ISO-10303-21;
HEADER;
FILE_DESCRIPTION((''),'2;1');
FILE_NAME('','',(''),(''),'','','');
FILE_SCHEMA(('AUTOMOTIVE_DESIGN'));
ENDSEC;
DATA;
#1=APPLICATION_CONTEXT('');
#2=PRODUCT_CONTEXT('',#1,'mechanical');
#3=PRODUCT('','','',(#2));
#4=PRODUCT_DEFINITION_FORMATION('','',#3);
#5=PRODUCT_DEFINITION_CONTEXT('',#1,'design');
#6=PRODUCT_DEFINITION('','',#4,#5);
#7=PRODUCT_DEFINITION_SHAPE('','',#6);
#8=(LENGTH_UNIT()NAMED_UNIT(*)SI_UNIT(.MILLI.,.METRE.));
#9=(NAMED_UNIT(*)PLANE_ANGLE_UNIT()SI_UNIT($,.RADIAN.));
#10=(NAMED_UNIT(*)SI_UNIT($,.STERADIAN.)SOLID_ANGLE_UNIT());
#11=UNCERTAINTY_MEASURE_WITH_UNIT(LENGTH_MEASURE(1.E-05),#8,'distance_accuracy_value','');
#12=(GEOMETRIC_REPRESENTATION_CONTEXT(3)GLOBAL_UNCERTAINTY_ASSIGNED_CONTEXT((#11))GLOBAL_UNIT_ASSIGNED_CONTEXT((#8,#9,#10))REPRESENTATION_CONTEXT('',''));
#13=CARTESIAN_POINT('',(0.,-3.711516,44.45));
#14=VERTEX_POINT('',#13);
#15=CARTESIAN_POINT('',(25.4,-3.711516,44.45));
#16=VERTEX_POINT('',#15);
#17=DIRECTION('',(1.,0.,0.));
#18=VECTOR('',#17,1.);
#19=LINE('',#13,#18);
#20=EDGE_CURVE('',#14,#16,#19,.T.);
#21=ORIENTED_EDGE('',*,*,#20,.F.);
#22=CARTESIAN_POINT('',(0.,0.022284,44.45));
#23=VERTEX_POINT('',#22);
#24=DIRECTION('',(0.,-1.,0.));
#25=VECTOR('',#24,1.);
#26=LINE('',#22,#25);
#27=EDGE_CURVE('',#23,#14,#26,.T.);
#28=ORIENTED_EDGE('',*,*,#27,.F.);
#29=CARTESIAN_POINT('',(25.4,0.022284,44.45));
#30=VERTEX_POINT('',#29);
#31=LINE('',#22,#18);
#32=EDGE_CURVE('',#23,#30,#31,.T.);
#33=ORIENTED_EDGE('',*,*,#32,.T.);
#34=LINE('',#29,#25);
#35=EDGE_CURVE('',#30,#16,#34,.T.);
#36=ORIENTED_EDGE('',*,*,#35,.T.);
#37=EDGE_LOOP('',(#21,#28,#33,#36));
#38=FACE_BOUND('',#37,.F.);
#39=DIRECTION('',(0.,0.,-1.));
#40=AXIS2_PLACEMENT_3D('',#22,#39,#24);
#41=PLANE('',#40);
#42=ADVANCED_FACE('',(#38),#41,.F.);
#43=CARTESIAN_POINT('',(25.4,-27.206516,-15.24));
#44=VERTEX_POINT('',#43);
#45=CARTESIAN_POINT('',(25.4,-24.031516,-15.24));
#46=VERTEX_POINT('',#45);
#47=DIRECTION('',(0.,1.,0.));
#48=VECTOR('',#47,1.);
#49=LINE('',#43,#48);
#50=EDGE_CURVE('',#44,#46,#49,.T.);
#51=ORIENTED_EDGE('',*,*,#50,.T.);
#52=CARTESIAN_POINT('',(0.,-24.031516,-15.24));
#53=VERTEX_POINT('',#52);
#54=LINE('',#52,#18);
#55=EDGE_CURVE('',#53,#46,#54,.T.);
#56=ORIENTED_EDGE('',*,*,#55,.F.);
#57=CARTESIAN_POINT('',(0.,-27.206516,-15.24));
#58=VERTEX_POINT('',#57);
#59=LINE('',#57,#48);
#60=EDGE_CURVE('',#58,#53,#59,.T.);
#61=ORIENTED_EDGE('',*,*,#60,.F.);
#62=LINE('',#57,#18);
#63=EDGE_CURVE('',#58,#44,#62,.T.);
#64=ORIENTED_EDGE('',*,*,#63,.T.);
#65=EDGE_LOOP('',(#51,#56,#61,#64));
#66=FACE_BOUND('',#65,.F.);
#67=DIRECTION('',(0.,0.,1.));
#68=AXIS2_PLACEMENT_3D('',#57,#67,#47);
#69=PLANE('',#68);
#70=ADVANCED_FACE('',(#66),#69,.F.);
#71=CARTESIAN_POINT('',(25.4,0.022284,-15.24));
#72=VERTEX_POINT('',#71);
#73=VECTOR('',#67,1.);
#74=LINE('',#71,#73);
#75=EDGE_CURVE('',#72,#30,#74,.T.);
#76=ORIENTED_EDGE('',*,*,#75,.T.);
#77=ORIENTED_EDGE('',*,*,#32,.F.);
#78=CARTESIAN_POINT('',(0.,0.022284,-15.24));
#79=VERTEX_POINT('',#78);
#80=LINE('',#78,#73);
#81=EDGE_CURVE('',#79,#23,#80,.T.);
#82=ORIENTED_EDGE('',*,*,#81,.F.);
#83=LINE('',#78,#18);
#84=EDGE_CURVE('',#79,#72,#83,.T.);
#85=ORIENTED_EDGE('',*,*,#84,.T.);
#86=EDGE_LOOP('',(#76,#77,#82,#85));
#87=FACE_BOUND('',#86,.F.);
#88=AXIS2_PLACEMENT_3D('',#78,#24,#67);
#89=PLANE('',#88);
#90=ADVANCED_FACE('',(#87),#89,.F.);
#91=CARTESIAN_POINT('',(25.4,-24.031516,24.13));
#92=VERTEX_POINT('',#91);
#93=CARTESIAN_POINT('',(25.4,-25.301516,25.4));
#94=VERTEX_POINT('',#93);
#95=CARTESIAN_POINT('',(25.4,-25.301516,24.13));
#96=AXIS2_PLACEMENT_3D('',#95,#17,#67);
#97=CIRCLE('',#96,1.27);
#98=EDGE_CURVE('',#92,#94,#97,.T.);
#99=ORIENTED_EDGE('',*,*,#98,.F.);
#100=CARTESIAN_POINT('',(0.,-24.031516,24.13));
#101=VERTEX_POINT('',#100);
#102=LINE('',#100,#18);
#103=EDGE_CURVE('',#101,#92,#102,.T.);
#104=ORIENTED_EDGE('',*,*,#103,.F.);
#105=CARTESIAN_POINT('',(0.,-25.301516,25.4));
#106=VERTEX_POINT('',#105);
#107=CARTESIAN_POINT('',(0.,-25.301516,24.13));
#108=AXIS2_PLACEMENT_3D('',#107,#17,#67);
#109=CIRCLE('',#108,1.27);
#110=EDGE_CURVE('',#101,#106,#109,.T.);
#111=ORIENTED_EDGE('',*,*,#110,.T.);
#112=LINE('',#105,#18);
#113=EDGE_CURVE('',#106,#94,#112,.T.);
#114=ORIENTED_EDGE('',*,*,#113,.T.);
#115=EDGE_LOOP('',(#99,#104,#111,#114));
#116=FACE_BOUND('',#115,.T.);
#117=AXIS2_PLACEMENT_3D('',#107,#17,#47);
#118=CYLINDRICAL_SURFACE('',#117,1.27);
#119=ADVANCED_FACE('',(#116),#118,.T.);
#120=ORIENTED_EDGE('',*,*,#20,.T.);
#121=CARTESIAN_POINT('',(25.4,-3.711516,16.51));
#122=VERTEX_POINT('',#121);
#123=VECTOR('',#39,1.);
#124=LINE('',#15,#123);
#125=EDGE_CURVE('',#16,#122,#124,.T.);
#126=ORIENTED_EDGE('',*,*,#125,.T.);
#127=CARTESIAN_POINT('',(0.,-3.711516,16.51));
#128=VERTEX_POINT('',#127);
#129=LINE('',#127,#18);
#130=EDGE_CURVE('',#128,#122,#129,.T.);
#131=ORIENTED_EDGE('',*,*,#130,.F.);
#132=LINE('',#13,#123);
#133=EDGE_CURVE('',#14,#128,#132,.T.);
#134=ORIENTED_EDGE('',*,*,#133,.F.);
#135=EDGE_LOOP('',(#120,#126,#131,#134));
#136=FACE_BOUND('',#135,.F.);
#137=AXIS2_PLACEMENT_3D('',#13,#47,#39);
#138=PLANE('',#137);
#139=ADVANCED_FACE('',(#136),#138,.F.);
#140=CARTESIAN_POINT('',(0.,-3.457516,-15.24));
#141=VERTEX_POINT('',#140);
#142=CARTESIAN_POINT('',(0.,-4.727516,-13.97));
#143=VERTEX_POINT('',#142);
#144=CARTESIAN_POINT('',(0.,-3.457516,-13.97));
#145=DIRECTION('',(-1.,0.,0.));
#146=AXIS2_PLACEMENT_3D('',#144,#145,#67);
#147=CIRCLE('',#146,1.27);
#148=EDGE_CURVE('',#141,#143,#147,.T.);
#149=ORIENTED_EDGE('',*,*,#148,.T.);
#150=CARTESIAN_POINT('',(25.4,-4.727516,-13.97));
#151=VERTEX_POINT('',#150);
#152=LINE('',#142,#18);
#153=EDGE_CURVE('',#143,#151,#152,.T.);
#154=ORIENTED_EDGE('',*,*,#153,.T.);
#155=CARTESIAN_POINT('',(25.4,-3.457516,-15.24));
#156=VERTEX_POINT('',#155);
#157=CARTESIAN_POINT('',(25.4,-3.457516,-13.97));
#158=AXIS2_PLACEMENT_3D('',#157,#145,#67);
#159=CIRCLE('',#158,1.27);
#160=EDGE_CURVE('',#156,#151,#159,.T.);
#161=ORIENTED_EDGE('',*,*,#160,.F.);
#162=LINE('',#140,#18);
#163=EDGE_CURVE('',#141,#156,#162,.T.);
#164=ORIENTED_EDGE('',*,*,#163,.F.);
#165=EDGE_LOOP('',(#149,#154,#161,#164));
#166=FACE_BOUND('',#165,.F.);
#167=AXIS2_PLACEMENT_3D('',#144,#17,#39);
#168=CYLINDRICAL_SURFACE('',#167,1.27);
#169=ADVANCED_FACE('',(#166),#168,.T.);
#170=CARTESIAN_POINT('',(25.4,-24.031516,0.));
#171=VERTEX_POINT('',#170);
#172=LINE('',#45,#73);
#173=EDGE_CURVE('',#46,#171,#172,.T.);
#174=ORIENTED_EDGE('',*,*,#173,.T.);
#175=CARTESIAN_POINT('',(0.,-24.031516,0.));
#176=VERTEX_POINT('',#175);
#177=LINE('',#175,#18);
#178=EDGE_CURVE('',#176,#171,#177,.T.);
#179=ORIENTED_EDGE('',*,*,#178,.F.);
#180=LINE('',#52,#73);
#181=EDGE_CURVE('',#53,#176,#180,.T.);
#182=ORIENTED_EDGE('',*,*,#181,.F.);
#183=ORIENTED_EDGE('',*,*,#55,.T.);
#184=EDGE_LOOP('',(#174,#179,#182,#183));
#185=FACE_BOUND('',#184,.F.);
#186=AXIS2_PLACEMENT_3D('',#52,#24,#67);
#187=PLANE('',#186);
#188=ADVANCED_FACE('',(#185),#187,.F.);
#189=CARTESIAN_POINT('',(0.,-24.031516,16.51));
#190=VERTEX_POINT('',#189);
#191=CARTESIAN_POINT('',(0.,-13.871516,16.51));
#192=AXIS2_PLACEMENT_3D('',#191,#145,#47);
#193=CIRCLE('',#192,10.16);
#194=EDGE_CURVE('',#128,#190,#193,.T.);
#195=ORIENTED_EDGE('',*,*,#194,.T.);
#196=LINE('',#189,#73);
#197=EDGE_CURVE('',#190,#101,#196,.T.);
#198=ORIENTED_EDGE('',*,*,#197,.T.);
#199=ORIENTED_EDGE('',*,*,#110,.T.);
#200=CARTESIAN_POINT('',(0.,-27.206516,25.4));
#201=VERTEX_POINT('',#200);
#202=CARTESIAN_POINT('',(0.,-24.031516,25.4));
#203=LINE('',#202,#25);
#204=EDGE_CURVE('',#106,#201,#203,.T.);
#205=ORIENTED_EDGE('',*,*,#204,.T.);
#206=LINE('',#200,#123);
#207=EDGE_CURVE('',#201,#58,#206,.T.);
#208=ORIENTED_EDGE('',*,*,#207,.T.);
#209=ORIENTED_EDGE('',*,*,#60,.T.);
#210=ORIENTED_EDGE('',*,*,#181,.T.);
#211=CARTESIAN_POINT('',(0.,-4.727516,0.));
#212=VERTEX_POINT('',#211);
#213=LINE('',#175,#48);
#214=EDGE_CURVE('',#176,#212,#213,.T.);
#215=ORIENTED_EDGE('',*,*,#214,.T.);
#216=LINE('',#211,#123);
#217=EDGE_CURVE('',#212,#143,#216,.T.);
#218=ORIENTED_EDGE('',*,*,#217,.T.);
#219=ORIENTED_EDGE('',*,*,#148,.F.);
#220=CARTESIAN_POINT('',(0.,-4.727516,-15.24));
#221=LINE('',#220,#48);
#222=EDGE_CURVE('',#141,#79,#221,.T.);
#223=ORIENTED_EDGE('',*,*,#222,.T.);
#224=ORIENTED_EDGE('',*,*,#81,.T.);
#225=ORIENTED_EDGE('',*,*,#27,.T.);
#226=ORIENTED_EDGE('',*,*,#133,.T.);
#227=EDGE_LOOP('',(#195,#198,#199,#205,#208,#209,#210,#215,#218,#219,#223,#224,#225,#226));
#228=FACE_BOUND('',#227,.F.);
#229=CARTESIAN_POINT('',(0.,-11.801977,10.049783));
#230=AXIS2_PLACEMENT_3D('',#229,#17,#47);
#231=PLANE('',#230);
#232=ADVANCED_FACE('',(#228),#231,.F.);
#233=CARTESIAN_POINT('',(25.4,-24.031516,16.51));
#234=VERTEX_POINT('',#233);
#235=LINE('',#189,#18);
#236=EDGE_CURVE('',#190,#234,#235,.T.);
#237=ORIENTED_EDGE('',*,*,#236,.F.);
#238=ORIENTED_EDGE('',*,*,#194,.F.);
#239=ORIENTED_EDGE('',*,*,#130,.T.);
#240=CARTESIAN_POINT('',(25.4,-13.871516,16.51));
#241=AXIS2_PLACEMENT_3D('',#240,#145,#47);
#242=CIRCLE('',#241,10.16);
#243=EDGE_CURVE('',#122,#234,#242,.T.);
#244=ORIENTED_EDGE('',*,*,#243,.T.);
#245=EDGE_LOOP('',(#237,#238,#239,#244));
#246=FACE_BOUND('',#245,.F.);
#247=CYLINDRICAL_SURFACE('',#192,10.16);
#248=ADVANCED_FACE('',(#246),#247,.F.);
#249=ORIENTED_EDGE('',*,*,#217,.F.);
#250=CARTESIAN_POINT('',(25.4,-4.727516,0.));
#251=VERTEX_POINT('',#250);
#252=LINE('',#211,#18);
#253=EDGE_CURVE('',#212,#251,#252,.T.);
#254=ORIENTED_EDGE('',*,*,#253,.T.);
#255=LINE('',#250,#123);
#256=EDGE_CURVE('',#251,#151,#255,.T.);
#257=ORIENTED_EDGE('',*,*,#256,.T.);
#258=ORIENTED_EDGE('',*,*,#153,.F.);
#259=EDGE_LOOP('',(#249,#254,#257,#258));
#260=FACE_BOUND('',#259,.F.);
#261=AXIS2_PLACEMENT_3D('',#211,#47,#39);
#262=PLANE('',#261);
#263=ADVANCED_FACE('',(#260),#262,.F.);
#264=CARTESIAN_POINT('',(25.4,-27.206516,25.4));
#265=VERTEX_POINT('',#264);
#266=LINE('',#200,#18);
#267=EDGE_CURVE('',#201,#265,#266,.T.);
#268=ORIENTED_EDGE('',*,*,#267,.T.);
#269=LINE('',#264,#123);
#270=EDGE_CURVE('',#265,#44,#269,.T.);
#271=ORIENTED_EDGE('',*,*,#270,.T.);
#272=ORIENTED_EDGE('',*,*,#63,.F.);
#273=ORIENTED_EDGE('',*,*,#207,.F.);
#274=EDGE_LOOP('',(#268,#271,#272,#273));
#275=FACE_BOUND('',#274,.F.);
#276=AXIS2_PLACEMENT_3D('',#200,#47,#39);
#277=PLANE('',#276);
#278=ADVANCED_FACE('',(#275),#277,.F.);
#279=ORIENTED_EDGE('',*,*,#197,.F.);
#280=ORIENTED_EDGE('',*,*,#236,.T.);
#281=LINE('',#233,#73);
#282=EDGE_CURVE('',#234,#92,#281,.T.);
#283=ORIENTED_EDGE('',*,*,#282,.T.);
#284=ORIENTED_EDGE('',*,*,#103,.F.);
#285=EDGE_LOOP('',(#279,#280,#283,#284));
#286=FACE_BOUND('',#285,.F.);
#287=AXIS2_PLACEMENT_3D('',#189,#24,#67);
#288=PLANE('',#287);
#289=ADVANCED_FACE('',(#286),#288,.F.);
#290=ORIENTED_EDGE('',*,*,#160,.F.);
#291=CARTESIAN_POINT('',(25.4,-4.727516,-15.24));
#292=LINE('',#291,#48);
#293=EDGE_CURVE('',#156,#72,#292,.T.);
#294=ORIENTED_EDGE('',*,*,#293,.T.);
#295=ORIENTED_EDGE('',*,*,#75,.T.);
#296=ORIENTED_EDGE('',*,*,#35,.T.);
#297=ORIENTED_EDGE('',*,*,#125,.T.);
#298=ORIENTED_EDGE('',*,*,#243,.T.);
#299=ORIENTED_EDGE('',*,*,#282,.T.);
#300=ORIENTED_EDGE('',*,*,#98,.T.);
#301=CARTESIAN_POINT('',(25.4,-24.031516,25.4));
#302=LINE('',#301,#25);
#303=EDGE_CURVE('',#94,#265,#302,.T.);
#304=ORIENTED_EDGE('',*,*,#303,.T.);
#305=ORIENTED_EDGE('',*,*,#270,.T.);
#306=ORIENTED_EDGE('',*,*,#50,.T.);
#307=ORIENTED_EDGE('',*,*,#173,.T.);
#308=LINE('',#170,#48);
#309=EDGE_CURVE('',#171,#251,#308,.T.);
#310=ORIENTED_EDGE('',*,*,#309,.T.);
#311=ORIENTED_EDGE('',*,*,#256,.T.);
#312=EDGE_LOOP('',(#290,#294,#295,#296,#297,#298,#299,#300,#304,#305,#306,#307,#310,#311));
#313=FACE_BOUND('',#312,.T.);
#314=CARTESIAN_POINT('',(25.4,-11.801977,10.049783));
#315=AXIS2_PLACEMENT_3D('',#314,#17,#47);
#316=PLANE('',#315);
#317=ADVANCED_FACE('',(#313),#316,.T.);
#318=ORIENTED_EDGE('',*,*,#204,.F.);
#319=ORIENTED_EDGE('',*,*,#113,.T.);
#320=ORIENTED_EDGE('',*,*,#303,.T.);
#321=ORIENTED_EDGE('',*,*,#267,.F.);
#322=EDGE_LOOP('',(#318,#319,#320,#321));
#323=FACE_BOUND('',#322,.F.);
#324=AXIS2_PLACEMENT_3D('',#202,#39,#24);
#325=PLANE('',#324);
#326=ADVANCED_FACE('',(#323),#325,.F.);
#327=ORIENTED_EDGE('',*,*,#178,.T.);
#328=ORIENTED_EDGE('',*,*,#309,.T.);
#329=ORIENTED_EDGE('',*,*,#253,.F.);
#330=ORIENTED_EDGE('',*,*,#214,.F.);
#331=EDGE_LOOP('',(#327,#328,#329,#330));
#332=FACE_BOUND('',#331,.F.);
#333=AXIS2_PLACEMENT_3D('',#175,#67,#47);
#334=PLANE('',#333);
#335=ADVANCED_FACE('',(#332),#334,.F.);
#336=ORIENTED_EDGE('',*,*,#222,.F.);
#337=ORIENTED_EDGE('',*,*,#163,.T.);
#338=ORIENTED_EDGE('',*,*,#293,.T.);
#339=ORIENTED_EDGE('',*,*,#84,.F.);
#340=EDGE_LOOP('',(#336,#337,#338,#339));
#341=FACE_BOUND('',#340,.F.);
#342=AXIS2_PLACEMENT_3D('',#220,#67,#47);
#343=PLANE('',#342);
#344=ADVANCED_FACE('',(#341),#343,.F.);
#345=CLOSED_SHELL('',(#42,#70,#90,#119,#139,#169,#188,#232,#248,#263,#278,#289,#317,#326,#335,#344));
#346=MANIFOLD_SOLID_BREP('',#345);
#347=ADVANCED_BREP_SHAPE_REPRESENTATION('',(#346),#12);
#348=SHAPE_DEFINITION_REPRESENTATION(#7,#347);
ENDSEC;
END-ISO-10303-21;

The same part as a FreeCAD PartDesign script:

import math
import FreeCAD as App
import Part
import Sketcher

V = App.Vector
Q = App.Units.Quantity


def edges_at(feature, points):
    """Names of the edges that pass closest to the given points."""
    edges = feature.Shape.Edges
    near = lambda p: min(range(len(edges)), key=lambda i: edges[i].distToShape(Part.Vertex(*p))[0])
    return sorted({f"Edge{near(p) + 1}" for p in points})

doc = App.newDocument("Part")
params = doc.addObject("Spreadsheet::Sheet", "Params")
for row, (alias, value) in enumerate([
    ("sketch1_radius", "0.4 in"),
    ("sketch1_height", "0.6 in"),
    ("sketch1_height2", "1.1 in"),
    ("sketch1_height3", "1.6 in"),
    ("sketch1_width", "0.76 in"),
    ("pad1_length", "1 in"),
    ("fillet_radius", "0.05 in"),
    ("fillet2_radius", "0.05 in"),
], start=1):
    params.set(f"A{row}", alias)
    params.set(f"B{row}", "=" + value)
    params.setAlias(f"B{row}", alias)

body = doc.addObject("PartDesign::Body", "Body")

# Sketch on YZ plane
sketch1 = body.newObject("Sketcher::SketchObject", "Sketch")
sketch1.AttachmentSupport = (doc.getObject("YZ_Plane"), [""])
sketch1.MapMode = "FlatFace"
sketch1.addGeometry([
    Part.LineSegment(V(-24.031516, -15.24, 0), V(-24.031516, 0, 0)),  # 0
    Part.LineSegment(V(-24.031516, 0, 0), V(-4.727516, 0, 0)),  # 1
    Part.LineSegment(V(-4.727516, 0, 0), V(-4.727516, -15.24, 0)),  # 2
    Part.LineSegment(V(-4.727516, -15.24, 0), V(0.022284, -15.24, 0)),  # 3
    Part.LineSegment(V(0.022284, -15.24, 0), V(0.022284, 44.45, 0)),  # 4
    Part.LineSegment(V(0.022284, 44.45, 0), V(-3.711516, 44.45, 0)),  # 5
    Part.LineSegment(V(-3.711516, 44.45, 0), V(-3.711516, 16.51, 0)),  # 6
    Part.ArcOfCircle(Part.Circle(V(-13.871516, 16.51, 0), V(0, 0, 1), 10.16), math.radians(180), math.radians(360)),  # 7
    Part.LineSegment(V(-24.031516, 16.51, 0), V(-24.031516, 25.4, 0)),  # 8
    Part.LineSegment(V(-24.031516, 25.4, 0), V(-27.206516, 25.4, 0)),  # 9
    Part.LineSegment(V(-27.206516, 25.4, 0), V(-27.206516, -15.24, 0)),  # 10
    Part.LineSegment(V(-27.206516, -15.24, 0), V(-24.031516, -15.24, 0)),  # 11
], False)
sketch1.addConstraint([
    Sketcher.Constraint("Coincident", 0, 2, 1, 1),
    Sketcher.Constraint("Coincident", 1, 2, 2, 1),
    Sketcher.Constraint("Coincident", 2, 2, 3, 1),
    Sketcher.Constraint("Coincident", 3, 2, 4, 1),
    Sketcher.Constraint("Coincident", 4, 2, 5, 1),
    Sketcher.Constraint("Coincident", 5, 2, 6, 1),
    Sketcher.Constraint("Tangent", 6, 2, 7, 2),
    Sketcher.Constraint("Tangent", 7, 1, 8, 1),
    Sketcher.Constraint("Coincident", 8, 2, 9, 1),
    Sketcher.Constraint("Coincident", 9, 2, 10, 1),
    Sketcher.Constraint("Coincident", 10, 2, 11, 1),
    Sketcher.Constraint("Coincident", 11, 2, 0, 1),
    Sketcher.Constraint("Vertical", 0),
    Sketcher.Constraint("Horizontal", 1),
    Sketcher.Constraint("Vertical", 2),
    Sketcher.Constraint("Horizontal", 3),
    Sketcher.Constraint("Vertical", 4),
    Sketcher.Constraint("Horizontal", 5),
    Sketcher.Constraint("Vertical", 6),
    Sketcher.Constraint("Vertical", 8),
    Sketcher.Constraint("Horizontal", 9),
    Sketcher.Constraint("Vertical", 10),
    Sketcher.Constraint("Horizontal", 11),
    Sketcher.Constraint("PointOnObject", 0, 2, -1),
    Sketcher.Constraint("Horizontal", 3, 2, 10, 2),
    Sketcher.Constraint("Vertical", 0, 2, 7, 1),
    Sketcher.Constraint("Radius", 7, Q("0.4 in")),
    Sketcher.Constraint("DistanceY", 0, 1, 0, 2, Q("0.6 in")),
    Sketcher.Constraint("DistanceY", 6, 2, 6, 1, Q("1.1 in")),
    Sketcher.Constraint("DistanceY", 10, 2, 10, 1, Q("1.6 in")),
    Sketcher.Constraint("DistanceX", 1, 1, 1, 2, Q("0.76 in")),
    Sketcher.Constraint("DistanceY", 4, 1, 4, 2, Q("2.35 in")),
    Sketcher.Constraint("DistanceX", 3, 1, 3, 2, Q("0.187 in")),
    Sketcher.Constraint("DistanceX", 9, 2, 9, 1, Q("0.125 in")),
    Sketcher.Constraint("DistanceX", 7, 3, -1, 1, 13.871516),
])
sketch1.setExpression("Constraints[26]", "Params.sketch1_radius")
sketch1.setExpression("Constraints[27]", "Params.sketch1_height")
sketch1.setExpression("Constraints[28]", "Params.sketch1_height2")
sketch1.setExpression("Constraints[29]", "Params.sketch1_height3")
sketch1.setExpression("Constraints[30]", "Params.sketch1_width")
pad1 = body.newObject("PartDesign::Pad", "Pad")
pad1.Profile = sketch1
pad1.setExpression("Length", "Params.pad1_length")
doc.recompute()

fillet = body.newObject("PartDesign::Fillet", "Fillet")
fillet.Base = (pad1, edges_at(pad1, [(12.7, -24.032, 25.4)]))
fillet.setExpression("Radius", "Params.fillet_radius")
doc.recompute()

fillet2 = body.newObject("PartDesign::Fillet", "Fillet001")
fillet2.Base = (fillet, edges_at(fillet, [(12.7, -4.728, -15.24)]))
fillet2.setExpression("Radius", "Params.fillet2_radius")

doc.recompute()
